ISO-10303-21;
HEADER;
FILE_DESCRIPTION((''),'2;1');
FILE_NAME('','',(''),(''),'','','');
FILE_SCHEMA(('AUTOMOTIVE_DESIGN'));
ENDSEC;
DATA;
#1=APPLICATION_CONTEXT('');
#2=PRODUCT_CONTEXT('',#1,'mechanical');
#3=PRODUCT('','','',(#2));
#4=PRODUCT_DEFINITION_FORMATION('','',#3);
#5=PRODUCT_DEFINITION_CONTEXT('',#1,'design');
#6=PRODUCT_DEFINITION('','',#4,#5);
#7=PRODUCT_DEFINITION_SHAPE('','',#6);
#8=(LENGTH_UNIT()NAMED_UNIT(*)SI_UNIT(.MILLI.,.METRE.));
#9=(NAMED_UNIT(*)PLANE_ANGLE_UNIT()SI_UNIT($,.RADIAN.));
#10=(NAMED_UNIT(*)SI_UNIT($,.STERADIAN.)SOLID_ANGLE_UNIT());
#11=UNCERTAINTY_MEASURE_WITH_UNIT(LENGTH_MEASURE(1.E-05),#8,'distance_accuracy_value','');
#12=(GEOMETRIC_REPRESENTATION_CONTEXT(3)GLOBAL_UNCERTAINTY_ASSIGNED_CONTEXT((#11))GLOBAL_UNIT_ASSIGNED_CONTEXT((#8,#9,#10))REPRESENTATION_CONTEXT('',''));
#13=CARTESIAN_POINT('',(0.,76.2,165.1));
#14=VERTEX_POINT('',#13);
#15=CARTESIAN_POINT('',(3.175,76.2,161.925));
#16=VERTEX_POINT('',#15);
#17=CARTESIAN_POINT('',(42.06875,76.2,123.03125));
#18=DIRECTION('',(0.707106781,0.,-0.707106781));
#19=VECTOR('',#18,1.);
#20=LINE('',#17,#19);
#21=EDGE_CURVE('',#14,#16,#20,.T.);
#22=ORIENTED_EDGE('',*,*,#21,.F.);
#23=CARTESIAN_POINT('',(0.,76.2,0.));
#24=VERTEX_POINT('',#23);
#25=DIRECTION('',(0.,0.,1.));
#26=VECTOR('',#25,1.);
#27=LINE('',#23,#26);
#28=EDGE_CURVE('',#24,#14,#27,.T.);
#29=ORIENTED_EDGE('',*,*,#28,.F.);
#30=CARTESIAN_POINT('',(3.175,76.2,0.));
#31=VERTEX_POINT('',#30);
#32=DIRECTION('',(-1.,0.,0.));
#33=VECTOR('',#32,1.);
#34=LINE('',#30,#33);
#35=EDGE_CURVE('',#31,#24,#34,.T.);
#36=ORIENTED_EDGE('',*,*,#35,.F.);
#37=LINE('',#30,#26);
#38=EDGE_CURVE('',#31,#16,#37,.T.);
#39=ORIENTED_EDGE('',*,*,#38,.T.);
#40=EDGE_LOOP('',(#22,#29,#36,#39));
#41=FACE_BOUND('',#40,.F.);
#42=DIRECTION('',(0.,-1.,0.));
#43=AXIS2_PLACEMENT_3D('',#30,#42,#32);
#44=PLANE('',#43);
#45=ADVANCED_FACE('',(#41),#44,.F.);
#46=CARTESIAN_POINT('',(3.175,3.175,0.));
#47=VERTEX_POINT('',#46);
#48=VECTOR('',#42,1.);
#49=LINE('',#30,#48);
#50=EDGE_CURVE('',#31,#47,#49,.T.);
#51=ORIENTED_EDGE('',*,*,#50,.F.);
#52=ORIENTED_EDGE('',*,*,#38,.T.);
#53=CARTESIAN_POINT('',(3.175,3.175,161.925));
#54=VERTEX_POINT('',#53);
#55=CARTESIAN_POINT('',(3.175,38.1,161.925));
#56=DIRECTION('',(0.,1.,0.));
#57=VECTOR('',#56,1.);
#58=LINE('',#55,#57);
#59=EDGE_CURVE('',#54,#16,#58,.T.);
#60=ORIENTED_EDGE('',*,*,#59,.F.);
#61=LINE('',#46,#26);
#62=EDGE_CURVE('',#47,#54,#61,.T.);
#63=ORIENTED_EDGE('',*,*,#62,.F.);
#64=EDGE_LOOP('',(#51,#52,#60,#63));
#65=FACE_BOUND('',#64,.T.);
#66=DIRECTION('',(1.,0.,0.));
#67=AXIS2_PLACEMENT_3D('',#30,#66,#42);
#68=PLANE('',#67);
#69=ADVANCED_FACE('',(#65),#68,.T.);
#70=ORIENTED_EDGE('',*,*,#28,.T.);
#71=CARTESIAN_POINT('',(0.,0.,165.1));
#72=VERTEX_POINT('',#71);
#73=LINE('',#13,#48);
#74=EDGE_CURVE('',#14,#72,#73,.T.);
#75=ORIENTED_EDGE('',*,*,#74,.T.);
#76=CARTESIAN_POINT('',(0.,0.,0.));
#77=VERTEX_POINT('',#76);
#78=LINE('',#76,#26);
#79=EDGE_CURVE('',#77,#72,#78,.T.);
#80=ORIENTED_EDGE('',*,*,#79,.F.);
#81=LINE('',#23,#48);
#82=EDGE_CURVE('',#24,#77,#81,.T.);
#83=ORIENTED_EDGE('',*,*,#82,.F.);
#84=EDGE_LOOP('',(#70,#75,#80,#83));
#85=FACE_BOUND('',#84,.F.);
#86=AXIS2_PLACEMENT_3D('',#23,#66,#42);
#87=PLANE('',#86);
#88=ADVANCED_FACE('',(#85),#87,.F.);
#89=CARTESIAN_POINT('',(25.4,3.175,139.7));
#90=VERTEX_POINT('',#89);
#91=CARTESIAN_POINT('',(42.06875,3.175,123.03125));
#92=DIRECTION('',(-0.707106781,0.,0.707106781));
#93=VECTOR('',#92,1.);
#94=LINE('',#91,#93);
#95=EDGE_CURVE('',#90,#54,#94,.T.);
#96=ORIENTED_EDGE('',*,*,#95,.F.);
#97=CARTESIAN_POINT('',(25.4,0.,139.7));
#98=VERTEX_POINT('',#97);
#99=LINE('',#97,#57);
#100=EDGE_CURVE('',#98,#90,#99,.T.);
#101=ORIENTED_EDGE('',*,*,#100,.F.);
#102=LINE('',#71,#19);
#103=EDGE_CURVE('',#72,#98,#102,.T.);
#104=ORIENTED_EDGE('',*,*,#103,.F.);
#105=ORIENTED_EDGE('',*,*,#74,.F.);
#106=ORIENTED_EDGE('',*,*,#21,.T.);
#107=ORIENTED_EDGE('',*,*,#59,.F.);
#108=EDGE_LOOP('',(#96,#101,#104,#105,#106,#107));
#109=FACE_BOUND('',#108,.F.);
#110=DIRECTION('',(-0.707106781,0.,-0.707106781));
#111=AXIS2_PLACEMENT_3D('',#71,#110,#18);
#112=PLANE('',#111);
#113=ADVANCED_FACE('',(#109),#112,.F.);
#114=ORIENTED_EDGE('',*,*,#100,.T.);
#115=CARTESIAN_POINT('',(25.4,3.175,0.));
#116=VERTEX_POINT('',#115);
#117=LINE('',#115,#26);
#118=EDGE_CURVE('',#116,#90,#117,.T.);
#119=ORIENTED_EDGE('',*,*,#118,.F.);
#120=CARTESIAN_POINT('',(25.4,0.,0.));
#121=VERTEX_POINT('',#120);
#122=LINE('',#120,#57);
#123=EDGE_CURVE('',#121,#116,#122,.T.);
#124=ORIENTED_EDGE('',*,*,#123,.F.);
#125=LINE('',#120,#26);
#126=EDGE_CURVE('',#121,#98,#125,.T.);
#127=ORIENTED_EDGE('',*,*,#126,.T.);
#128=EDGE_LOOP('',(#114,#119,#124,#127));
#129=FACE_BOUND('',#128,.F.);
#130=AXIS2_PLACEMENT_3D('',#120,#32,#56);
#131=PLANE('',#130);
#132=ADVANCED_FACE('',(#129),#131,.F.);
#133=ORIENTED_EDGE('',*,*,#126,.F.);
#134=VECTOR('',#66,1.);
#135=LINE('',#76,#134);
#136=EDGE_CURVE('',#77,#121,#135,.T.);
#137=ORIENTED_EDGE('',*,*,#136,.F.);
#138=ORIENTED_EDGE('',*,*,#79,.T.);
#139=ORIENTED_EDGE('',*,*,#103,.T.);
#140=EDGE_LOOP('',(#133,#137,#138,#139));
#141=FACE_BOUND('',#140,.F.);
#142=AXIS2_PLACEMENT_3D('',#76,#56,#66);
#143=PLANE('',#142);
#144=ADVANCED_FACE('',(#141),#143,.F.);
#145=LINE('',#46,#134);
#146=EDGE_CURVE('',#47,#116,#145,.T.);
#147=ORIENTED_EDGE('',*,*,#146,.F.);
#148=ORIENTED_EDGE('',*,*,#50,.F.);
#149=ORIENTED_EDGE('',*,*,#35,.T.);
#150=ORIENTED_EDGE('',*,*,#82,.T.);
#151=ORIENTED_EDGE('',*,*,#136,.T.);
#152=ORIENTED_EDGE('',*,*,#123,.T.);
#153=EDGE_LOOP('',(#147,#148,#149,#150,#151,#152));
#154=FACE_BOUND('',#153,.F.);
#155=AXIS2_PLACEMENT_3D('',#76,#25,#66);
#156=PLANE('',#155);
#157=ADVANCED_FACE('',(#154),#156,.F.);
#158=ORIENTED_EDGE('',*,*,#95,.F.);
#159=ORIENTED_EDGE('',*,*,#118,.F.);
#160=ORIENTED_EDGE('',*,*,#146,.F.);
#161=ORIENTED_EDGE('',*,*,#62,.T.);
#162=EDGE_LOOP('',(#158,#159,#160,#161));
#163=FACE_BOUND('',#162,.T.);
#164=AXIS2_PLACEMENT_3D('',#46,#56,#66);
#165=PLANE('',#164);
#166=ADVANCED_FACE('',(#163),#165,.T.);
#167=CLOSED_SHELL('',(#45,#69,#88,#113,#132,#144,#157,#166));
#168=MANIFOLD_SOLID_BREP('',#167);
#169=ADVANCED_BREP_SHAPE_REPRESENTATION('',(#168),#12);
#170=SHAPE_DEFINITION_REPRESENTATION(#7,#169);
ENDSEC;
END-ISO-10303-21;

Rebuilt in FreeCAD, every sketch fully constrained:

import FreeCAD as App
import Part
import Sketcher
Q = App.Units.Quantity

doc = App.newDocument("Part")
params = doc.addObject("Spreadsheet::Sheet", "Params")
for row, (alias, value) in enumerate([
    ("sketch1_width", "1 in"),
    ("sketch1_height", "3 in"),
    ("sketch1_width2", "0.125 in"),
    ("pad1_length", "6.5 in"),
    ("sketch2_width", "1 in"),
], start=1):
    params.set(f"A{row}", alias)
    params.set(f"B{row}", "=" + value)
    params.setAlias(f"B{row}", alias)

body = doc.addObject("PartDesign::Body", "Body")

# Sketch on XY plane
sketch1 = body.newObject("Sketcher::SketchObject", "Sketch")
sketch1.AttachmentSupport = (doc.getObject("XY_Plane"), [""])
sketch1.MapMode = "FlatFace"
sketch1.addGeometry([
    Part.LineSegment(App.Vector(0, 76.2, 0), App.Vector(0, 0, 0)),  # 0
    Part.LineSegment(App.Vector(0, 0, 0), App.Vector(25.4, 0, 0)),  # 1
    Part.LineSegment(App.Vector(25.4, 0, 0), App.Vector(25.4, 3.175, 0)),  # 2
    Part.LineSegment(App.Vector(25.4, 3.175, 0), App.Vector(3.175, 3.175, 0)),  # 3
    Part.LineSegment(App.Vector(3.175, 3.175, 0), App.Vector(3.175, 76.2, 0)),  # 4
    Part.LineSegment(App.Vector(3.175, 76.2, 0), App.Vector(0, 76.2, 0)),  # 5
], False)
sketch1.addConstraint([
    Sketcher.Constraint("Coincident", 0, 2, 1, 1),
    Sketcher.Constraint("Coincident", 1, 2, 2, 1),
    Sketcher.Constraint("Coincident", 2, 2, 3, 1),
    Sketcher.Constraint("Coincident", 3, 2, 4, 1),
    Sketcher.Constraint("Coincident", 4, 2, 5, 1),
    Sketcher.Constraint("Coincident", 5, 2, 0, 1),
    Sketcher.Constraint("Vertical", 0),
    Sketcher.Constraint("Horizontal", 1),
    Sketcher.Constraint("Vertical", 2),
    Sketcher.Constraint("Horizontal", 3),
    Sketcher.Constraint("Vertical", 4),
    Sketcher.Constraint("Horizontal", 5),
    Sketcher.Constraint("Coincident", 0, 2, -1, 1),
    Sketcher.Constraint("Equal", 5, 2),
    Sketcher.Constraint("DistanceX", 1, 1, 1, 2, Q("1 in")),
    Sketcher.Constraint("DistanceY", 0, 2, 0, 1, Q("3 in")),
    Sketcher.Constraint("DistanceX", 5, 2, 5, 1, Q("0.125 in")),
])
sketch1.setExpression("Constraints[14]", "Params.sketch1_width")
sketch1.setExpression("Constraints[15]", "Params.sketch1_height")
sketch1.setExpression("Constraints[16]", "Params.sketch1_width2")
pad1 = body.newObject("PartDesign::Pad", "Pad")
pad1.Profile = sketch1
pad1.setExpression("Length", "Params.pad1_length")

# Sketch on XZ plane
sketch2 = body.newObject("Sketcher::SketchObject", "Sketch001")
sketch2.AttachmentSupport = (doc.getObject("XZ_Plane"), [""])
sketch2.MapMode = "FlatFace"
sketch2.addGeometry([
    Part.LineSegment(App.Vector(25.4, 139.7, 0), App.Vector(25.4, 165.1, 0)),
    Part.LineSegment(App.Vector(25.4, 165.1, 0), App.Vector(0, 165.1, 0)),
    Part.LineSegment(App.Vector(0, 165.1, 0), App.Vector(25.4, 139.7, 0)),
], False)
sketch2.addConstraint([
    Sketcher.Constraint("Coincident", 0, 2, 1, 1),
    Sketcher.Constraint("Coincident", 1, 2, 2, 1),
    Sketcher.Constraint("Coincident", 2, 2, 0, 1),
    Sketcher.Constraint("Vertical", 0),
    Sketcher.Constraint("Horizontal", 1),
    Sketcher.Constraint("PointOnObject", 1, 2, -2),
    Sketcher.Constraint("Equal", 1, 0),
    Sketcher.Constraint("DistanceX", 1, 2, 1, 1, Q("1 in")),
    Sketcher.Constraint("DistanceY", -1, 1, 0, 2, Q("6.5 in")),
])
sketch2.setExpression("Constraints[7]", "Params.sketch2_width")
pocket1 = body.newObject("PartDesign::Pocket", "Pocket")
pocket1.Profile = sketch2
pocket1.Type = "ThroughAll"

doc.recompute()
